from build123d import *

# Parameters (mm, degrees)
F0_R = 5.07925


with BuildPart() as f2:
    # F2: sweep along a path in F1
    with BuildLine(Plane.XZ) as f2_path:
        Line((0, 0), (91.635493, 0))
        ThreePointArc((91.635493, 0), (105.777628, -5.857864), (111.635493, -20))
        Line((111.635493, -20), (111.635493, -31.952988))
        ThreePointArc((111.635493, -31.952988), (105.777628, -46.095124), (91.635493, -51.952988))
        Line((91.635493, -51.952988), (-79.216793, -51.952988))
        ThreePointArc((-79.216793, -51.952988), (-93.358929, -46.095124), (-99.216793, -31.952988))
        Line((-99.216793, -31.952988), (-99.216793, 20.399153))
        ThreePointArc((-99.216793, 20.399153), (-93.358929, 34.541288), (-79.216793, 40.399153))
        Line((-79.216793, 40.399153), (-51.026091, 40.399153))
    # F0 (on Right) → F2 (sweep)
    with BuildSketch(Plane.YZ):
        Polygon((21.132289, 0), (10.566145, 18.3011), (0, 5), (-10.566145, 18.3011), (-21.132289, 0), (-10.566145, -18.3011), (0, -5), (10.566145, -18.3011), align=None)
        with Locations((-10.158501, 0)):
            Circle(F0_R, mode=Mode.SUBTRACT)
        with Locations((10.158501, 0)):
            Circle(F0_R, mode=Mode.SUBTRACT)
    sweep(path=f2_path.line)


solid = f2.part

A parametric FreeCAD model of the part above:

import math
import FreeCAD as App
import Part
import Sketcher
from FreeCAD import Vector
Q = App.Units.Quantity


def add_polygon(sketch, points):
    """Adds a closed chain of lines whose ends are joined by coincident constraints."""
    first, n = sketch.GeometryCount, len(points)
    for a, b in zip(points, points[1:] + points[:1]):
        sketch.addGeometry(Part.LineSegment(App.Vector(*a, 0), App.Vector(*b, 0)), False)
    for i in range(n):
        sketch.addConstraint(Sketcher.Constraint("Coincident", first + i, 2, first + (i + 1) % n, 1))

doc = App.newDocument("Part")
body = doc.addObject("PartDesign::Body", "Body")

sketch1 = doc.addObject("Sketcher::SketchObject", "Sketch")
body.addObject(sketch1)
sketch1.AttachmentSupport = (doc.YZ_Plane, [""])
sketch1.MapMode = "FlatFace"
add_polygon(sketch1, [(21, 0), (11, 18), (0, 5), (-11, 18), (-21, 0), (-11, -18), (0, -5), (11, -18)])
sketch1.addGeometry(Part.Circle(Vector(-10, 0, 0), Vector(0, 0, 1), 5), False)
sketch1.addGeometry(Part.Circle(Vector(10, 0, 0), Vector(0, 0, 1), 5), False)
sketch1.addConstraint([
    Sketcher.Constraint("Equal", 8, 9),
    Sketcher.Constraint("Symmetric", 8, 3, 9, 3, -1, 1),
    Sketcher.Constraint("Symmetric", 0, 2, 4, 2, -1, 1),
    Sketcher.Constraint("Symmetric", 1, 2, 5, 2, -1, 1),
    Sketcher.Constraint("Symmetric", 2, 2, 6, 2, -1, 1),
    Sketcher.Constraint("Symmetric", 3, 2, 7, 2, -1, 1),
    Sketcher.Constraint("Symmetric", 0, 2, 2, 2, -2),
    Sketcher.Constraint("PointOnObject", 8, 3, -1),
    Sketcher.Constraint("PointOnObject", 1, 2, -2),
    Sketcher.Constraint("PointOnObject", 3, 2, -1),
    Sketcher.Constraint("Angle", 0, Q("119.999998 deg")),
    Sketcher.Constraint("DistanceY", -1, 1, 1, 2, Q("5 mm")),
    Sketcher.Constraint("Diameter", 8, Q("10.1585 mm")),
    Sketcher.Constraint("DistanceX", 8, 3, 9, 3, Q("20.317002 mm")),
    Sketcher.Constraint("DistanceY", -1, 1, 0, 2, Q("18.3011 mm")),
    Sketcher.Constraint("DistanceX", 3, 2, -1, 1, Q("21.132289 mm")),
])

sketch2 = doc.addObject("Sketcher::SketchObject", "Sketch001")
body.addObject(sketch2)
sketch2.AttachmentSupport = (doc.XZ_Plane, [""])
sketch2.MapMode = "FlatFace"
sketch2.addGeometry([
    Part.LineSegment(Vector(0, 0, 0), Vector(92, 0, 0)),
    Part.ArcOfCircle(Part.Circle(Vector(92, -20, 0), Vector(0, 0, 1), 20), math.radians(0), math.radians(90)),
    Part.LineSegment(Vector(112, -20, 0), Vector(112, -32, 0)),
    Part.ArcOfCircle(Part.Circle(Vector(92, -32, 0), Vector(0, 0, 1), 20), math.radians(-90), math.radians(0)),
    Part.LineSegment(Vector(92, -52, 0), Vector(-79, -52, 0)),
    Part.ArcOfCircle(Part.Circle(Vector(-79, -32, 0), Vector(0, 0, 1), 20), math.radians(180), math.radians(270)),
    Part.LineSegment(Vector(-99, -32, 0), Vector(-99, 20, 0)),
    Part.ArcOfCircle(Part.Circle(Vector(-79, 20, 0), Vector(0, 0, 1), 20), math.radians(90), math.radians(180)),
    Part.LineSegment(Vector(-79, 40, 0), Vector(-51, 40, 0)),
], False)
sketch2.addConstraint([
    Sketcher.Constraint("Tangent", 0, 2, 1, 2),
    Sketcher.Constraint("Tangent", 1, 1, 2, 1),
    Sketcher.Constraint("Tangent", 2, 2, 3, 2),
    Sketcher.Constraint("Tangent", 3, 1, 4, 1),
    Sketcher.Constraint("Tangent", 4, 2, 5, 2),
    Sketcher.Constraint("Tangent", 5, 1, 6, 1),
    Sketcher.Constraint("Tangent", 6, 2, 7, 2),
    Sketcher.Constraint("Tangent", 7, 1, 8, 1),
    Sketcher.Constraint("Horizontal", 0),
    Sketcher.Constraint("Vertical", 2),
    Sketcher.Constraint("Horizontal", 4),
    Sketcher.Constraint("Vertical", 6),
    Sketcher.Constraint("Horizontal", 8),
    Sketcher.Constraint("Coincident", 0, 1, -1, 1),
    Sketcher.Constraint("Equal", 1, 3),
    Sketcher.Constraint("Equal", 3, 5),
    Sketcher.Constraint("Equal", 5, 7),
    Sketcher.Constraint("Radius", 1, Q("20 mm")),
    Sketcher.Constraint("DistanceX", 8, 1, 8, 2, Q("28.190702 mm")),
    Sketcher.Constraint("DistanceY", 2, 2, 2, 1, Q("11.952988 mm")),
    Sketcher.Constraint("DistanceY", 6, 1, 6, 2, Q("52.352141 mm")),
    Sketcher.Constraint("DistanceX", 0, 1, 0, 2, Q("91.635493 mm")),
    Sketcher.Constraint("DistanceX", 4, 2, 4, 1, Q("170.852286 mm")),
])
doc.recompute()

additivepipe = doc.addObject("PartDesign::AdditivePipe", "AdditivePipe")
body.addObject(additivepipe)
additivepipe.Profile = sketch1
additivepipe.Spine = (sketch2, ["Edge1", "Edge2", "Edge3", "Edge4", "Edge5", "Edge6", "Edge7", "Edge8", "Edge9"])

doc.recompute()
